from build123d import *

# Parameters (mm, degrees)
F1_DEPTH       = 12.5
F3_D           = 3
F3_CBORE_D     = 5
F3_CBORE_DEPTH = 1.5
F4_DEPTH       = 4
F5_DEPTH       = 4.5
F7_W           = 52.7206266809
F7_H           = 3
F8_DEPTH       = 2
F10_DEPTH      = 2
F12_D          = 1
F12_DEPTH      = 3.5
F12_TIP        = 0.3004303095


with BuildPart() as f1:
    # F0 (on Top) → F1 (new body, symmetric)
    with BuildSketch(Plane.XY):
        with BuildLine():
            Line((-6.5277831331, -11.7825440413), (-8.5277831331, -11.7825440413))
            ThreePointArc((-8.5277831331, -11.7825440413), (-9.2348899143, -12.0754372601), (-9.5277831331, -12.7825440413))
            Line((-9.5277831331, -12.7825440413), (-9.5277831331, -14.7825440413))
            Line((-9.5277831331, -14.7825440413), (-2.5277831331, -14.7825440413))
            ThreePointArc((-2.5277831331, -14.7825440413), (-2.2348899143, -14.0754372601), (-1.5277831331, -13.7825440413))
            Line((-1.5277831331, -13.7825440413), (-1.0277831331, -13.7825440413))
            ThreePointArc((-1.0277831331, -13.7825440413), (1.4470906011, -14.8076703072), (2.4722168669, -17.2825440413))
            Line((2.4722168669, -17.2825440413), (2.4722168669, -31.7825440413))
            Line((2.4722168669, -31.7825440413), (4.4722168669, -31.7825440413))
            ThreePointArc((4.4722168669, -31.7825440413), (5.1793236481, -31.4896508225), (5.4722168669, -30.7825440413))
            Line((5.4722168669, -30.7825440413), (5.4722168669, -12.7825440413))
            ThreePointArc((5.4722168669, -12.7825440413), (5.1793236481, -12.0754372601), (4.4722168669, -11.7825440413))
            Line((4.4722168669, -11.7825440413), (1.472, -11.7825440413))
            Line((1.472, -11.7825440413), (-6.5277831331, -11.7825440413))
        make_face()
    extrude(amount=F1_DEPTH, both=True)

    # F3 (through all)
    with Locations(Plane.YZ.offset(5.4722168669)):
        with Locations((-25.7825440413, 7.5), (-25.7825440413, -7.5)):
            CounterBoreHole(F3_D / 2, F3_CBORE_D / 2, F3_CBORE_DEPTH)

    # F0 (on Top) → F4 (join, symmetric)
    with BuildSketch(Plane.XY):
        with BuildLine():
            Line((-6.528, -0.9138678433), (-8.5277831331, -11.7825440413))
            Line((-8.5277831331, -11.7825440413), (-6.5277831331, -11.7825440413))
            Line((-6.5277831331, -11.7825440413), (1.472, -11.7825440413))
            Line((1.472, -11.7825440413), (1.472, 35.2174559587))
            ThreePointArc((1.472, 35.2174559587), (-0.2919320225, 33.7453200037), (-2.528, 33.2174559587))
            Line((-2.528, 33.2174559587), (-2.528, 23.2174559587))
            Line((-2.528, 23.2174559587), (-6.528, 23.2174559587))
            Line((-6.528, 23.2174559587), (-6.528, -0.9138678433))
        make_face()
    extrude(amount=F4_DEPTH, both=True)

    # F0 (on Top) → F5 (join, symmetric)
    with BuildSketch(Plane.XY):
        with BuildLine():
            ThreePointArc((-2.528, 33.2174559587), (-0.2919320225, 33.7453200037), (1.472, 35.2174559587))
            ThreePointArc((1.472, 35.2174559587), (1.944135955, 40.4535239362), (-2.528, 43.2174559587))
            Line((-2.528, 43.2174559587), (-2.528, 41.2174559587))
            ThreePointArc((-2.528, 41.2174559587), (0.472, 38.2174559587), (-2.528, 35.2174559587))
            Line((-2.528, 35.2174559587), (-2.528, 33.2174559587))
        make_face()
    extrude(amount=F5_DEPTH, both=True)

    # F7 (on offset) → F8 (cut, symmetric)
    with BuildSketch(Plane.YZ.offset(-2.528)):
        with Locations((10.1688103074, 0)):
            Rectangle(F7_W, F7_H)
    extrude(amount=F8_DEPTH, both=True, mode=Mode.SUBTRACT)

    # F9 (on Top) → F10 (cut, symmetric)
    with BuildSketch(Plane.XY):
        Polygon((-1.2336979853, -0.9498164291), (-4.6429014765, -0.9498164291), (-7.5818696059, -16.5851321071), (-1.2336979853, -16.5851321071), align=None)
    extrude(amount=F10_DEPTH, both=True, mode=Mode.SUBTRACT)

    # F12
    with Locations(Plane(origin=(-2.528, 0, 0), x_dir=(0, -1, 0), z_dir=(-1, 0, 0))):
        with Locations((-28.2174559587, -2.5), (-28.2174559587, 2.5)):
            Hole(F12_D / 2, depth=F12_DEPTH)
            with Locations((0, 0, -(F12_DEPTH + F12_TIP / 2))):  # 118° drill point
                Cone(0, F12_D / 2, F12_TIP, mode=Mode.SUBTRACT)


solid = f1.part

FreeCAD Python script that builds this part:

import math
import FreeCAD as App
import Part
import Sketcher


def add_polygon(sketch, points):
    """Adds a closed chain of lines whose ends are joined by coincident constraints."""
    first, n = sketch.GeometryCount, len(points)
    for a, b in zip(points, points[1:] + points[:1]):
        sketch.addGeometry(Part.LineSegment(App.Vector(*a, 0), App.Vector(*b, 0)), False)
    for i in range(n):
        sketch.addConstraint(Sketcher.Constraint("Coincident", first + i, 2, first + (i + 1) % n, 1))

doc = App.newDocument("Part")
body = doc.addObject("PartDesign::Body", "Body")

sketch1 = body.newObject("Sketcher::SketchObject", "Sketch")
sketch1.AttachmentSupport = (doc.getObject("XY_Plane"), [""])
sketch1.MapMode = "FlatFace"
sketch1.addGeometry(Part.ArcOfCircle(Part.Circle(App.Vector(-8.5, -12.8, 0), App.Vector(0, 0, 1), 1), math.radians(90), math.radians(180)), False)
sketch1.addGeometry(Part.LineSegment(App.Vector(-9.5, -12.8, 0), App.Vector(-9.5, -14.8, 0)), False)
sketch1.addGeometry(Part.LineSegment(App.Vector(-9.5, -14.8, 0), App.Vector(-2.5, -14.8, 0)), False)
sketch1.addGeometry(Part.ArcOfCircle(Part.Circle(App.Vector(-1.5, -14.8, 0), App.Vector(0, 0, 1), 1), math.radians(90), math.radians(180)), False)
sketch1.addGeometry(Part.LineSegment(App.Vector(-1.5, -13.8, 0), App.Vector(-1, -13.8, 0)), False)
sketch1.addGeometry(Part.ArcOfCircle(Part.Circle(App.Vector(-1, -17.3, 0), App.Vector(0, 0, 1), 3.5), math.radians(0), math.radians(90)), False)
sketch1.addGeometry(Part.LineSegment(App.Vector(2.5, -17.3, 0), App.Vector(2.5, -31.8, 0)), False)
sketch1.addGeometry(Part.LineSegment(App.Vector(2.5, -31.8, 0), App.Vector(4.5, -31.8, 0)), False)
sketch1.addGeometry(Part.ArcOfCircle(Part.Circle(App.Vector(4.5, -30.8, 0), App.Vector(0, 0, 1), 1), math.radians(-90), math.radians(0)), False)
sketch1.addGeometry(Part.LineSegment(App.Vector(5.5, -30.8, 0), App.Vector(5.5, -12.8, 0)), False)
sketch1.addGeometry(Part.ArcOfCircle(Part.Circle(App.Vector(4.5, -12.8, 0), App.Vector(0, 0, 1), 1), math.radians(0), math.radians(90)), False)
sketch1.addGeometry(Part.LineSegment(App.Vector(4.5, -11.8, 0), App.Vector(-8.5, -11.8, 0)), False)
sketch1.addConstraint(Sketcher.Constraint("Tangent", 0, 2, 1, 1))
sketch1.addConstraint(Sketcher.Constraint("Coincident", 1, 2, 2, 1))
sketch1.addConstraint(Sketcher.Constraint("Coincident", 2, 2, 3, 2))
sketch1.addConstraint(Sketcher.Constraint("Tangent", 3, 1, 4, 1))
sketch1.addConstraint(Sketcher.Constraint("Tangent", 4, 2, 5, 2))
sketch1.addConstraint(Sketcher.Constraint("Tangent", 5, 1, 6, 1))
sketch1.addConstraint(Sketcher.Constraint("Coincident", 6, 2, 7, 1))
sketch1.addConstraint(Sketcher.Constraint("Tangent", 7, 2, 8, 1))
sketch1.addConstraint(Sketcher.Constraint("Tangent", 8, 2, 9, 1))
sketch1.addConstraint(Sketcher.Constraint("Tangent", 9, 2, 10, 1))
sketch1.addConstraint(Sketcher.Constraint("Tangent", 10, 2, 11, 1))
sketch1.addConstraint(Sketcher.Constraint("Tangent", 11, 2, 0, 1))
sketch1.addConstraint(Sketcher.Constraint("Vertical", 1))
sketch1.addConstraint(Sketcher.Constraint("Horizontal", 2))
sketch1.addConstraint(Sketcher.Constraint("Horizontal", 4))
sketch1.addConstraint(Sketcher.Constraint("Vertical", 6))
sketch1.addConstraint(Sketcher.Constraint("Horizontal", 7))
sketch1.addConstraint(Sketcher.Constraint("Vertical", 9))
sketch1.addConstraint(Sketcher.Constraint("Horizontal", 11))
sketch1.addConstraint(Sketcher.Constraint("Equal", 0, 3))
sketch1.addConstraint(Sketcher.Constraint("Equal", 3, 8))
sketch1.addConstraint(Sketcher.Constraint("Equal", 8, 10))
sketch1.addConstraint(Sketcher.Constraint("Horizontal", 3, 3, 1, 2))
sketch1.addConstraint(Sketcher.Constraint("Equal", 7, 1))
sketch1.addConstraint(Sketcher.Constraint("Radius", 0, 1.0))
sketch1.addConstraint(Sketcher.Constraint("Radius", 5, 3.5))
sketch1.addConstraint(Sketcher.Constraint("DistanceX", 2, 1, 2, 2, 7.0))
sketch1.addConstraint(Sketcher.Constraint("DistanceX", 7, 1, 7, 2, 2.0))
sketch1.addConstraint(Sketcher.Constraint("DistanceX", 11, 2, 11, 1, 13.0))
sketch1.addConstraint(Sketcher.Constraint("DistanceY", 9, 1, 9, 2, 18.0))
sketch1.addConstraint(Sketcher.Constraint("DistanceX", 0, 3, -1, 1, 8.527783))
sketch1.addConstraint(Sketcher.Constraint("DistanceY", 0, 3, -1, 1, 12.782544))
pad1 = body.newObject("PartDesign::Pad", "Pad")
pad1.Profile = sketch1
pad1.Length = 25
pad1.Midplane = True

sketch2 = body.newObject("Sketcher::SketchObject", "Sketch001")
sketch2.AttachmentSupport = (doc.getObject("YZ_Plane"), [""])
sketch2.MapMode = "FlatFace"
sketch2.AttachmentOffset = App.Placement(App.Vector(0, 0, 5.472217), App.Rotation())
sketch2.addGeometry(Part.Circle(App.Vector(-25.8, 7.5, 0), App.Vector(0, 0, 1), 1.5), False)
sketch2.addGeometry(Part.Circle(App.Vector(-25.8, -7.5, 0), App.Vector(0, 0, 1), 1.5), False)
sketch2.addConstraint(Sketcher.Constraint("Equal", 0, 1))
sketch2.addConstraint(Sketcher.Constraint("Symmetric", 0, 3, 1, 3, -1))
sketch2.addConstraint(Sketcher.Constraint("Diameter", 0, 3.0))
sketch2.addConstraint(Sketcher.Constraint("DistanceY", 1, 3, 0, 3, 15.0))
sketch2.addConstraint(Sketcher.Constraint("DistanceX", 0, 3, -1, 1, 25.782544))
doc.recompute()
hole = body.newObject("PartDesign::Hole", "Hole")
hole.Profile = sketch2
hole.ThreadType = "None"
hole.Diameter = 3
hole.DepthType = "ThroughAll"
hole.HoleCutType = "Counterbore"
hole.HoleCutDiameter = 5
hole.HoleCutDepth = 1.5

sketch3 = body.newObject("Sketcher::SketchObject", "Sketch002")
sketch3.AttachmentSupport = (doc.getObject("XY_Plane"), [""])
sketch3.MapMode = "FlatFace"
sketch3.addGeometry(Part.LineSegment(App.Vector(-6.5, -0.9, 0), App.Vector(-8.5, -11.8, 0)), False)
sketch3.addGeometry(Part.LineSegment(App.Vector(-8.5, -11.8, 0), App.Vector(1.5, -11.8, 0)), False)
sketch3.addGeometry(Part.LineSegment(App.Vector(1.5, -11.8, 0), App.Vector(1.5, 35.2, 0)), False)
sketch3.addGeometry(Part.ArcOfCircle(Part.Circle(App.Vector(-2.5, 38.2, 0), App.Vector(0, 0, 1), 5), math.radians(-90), math.radians(-37)), False)
sketch3.addGeometry(Part.LineSegment(App.Vector(-2.5, 33.2, 0), App.Vector(-2.5, 23.2, 0)), False)
sketch3.addGeometry(Part.LineSegment(App.Vector(-2.5, 23.2, 0), App.Vector(-6.5, 23.2, 0)), False)
sketch3.addGeometry(Part.LineSegment(App.Vector(-6.5, 23.2, 0), App.Vector(-6.5, -0.9, 0)), False)
sketch3.addConstraint(Sketcher.Constraint("Coincident", 0, 2, 1, 1))
sketch3.addConstraint(Sketcher.Constraint("Coincident", 1, 2, 2, 1))
sketch3.addConstraint(Sketcher.Constraint("Coincident", 2, 2, 3, 2))
sketch3.addConstraint(Sketcher.Constraint("Coincident", 3, 1, 4, 1))
sketch3.addConstraint(Sketcher.Constraint("Coincident", 4, 2, 5, 1))
sketch3.addConstraint(Sketcher.Constraint("Coincident", 5, 2, 6, 1))
sketch3.addConstraint(Sketcher.Constraint("Coincident", 6, 2, 0, 1))
sketch3.addConstraint(Sketcher.Constraint("Horizontal", 1))
sketch3.addConstraint(Sketcher.Constraint("Vertical", 2))
sketch3.addConstraint(Sketcher.Constraint("Vertical", 4))
sketch3.addConstraint(Sketcher.Constraint("Horizontal", 5))
sketch3.addConstraint(Sketcher.Constraint("Vertical", 6))
sketch3.addConstraint(Sketcher.Constraint("Radius", 3, 5.0))
sketch3.addConstraint(Sketcher.Constraint("DistanceX", 5, 2, 5, 1, 4.0))
sketch3.addConstraint(Sketcher.Constraint("DistanceY", 2, 1, 2, 2, 47.0))
sketch3.addConstraint(Sketcher.Constraint("DistanceY", 4, 2, 4, 1, 10.0))
sketch3.addConstraint(Sketcher.Constraint("DistanceY", 0, 2, 3, 3, 50.0))
sketch3.addConstraint(Sketcher.Constraint("DistanceX", 3, 1, 2, 2, 4.0))
sketch3.addConstraint(Sketcher.Constraint("DistanceX", 3, 3, -1, 1, 2.528))
sketch3.addConstraint(Sketcher.Constraint("Distance", 0, 11.05112))
sketch3.addConstraint(Sketcher.Constraint("DistanceX", 1, 1, 1, 2, 9.999783))
sketch3.addConstraint(Sketcher.Constraint("DistanceY", -1, 1, 3, 3, 38.217456))
pad2 = body.newObject("PartDesign::Pad", "Pad001")
pad2.Profile = sketch3
pad2.Length = 8
pad2.Midplane = True

sketch4 = body.newObject("Sketcher::SketchObject", "Sketch003")
sketch4.AttachmentSupport = (doc.getObject("XY_Plane"), [""])
sketch4.MapMode = "FlatFace"
sketch4.addGeometry(Part.ArcOfCircle(Part.Circle(App.Vector(-2.5, 38.2, 0), App.Vector(0, 0, 1), 5), math.radians(-90), math.radians(90)), False)
sketch4.addGeometry(Part.LineSegment(App.Vector(-2.5, 43.2, 0), App.Vector(-2.5, 41.2, 0)), False)
sketch4.addGeometry(Part.ArcOfCircle(Part.Circle(App.Vector(-2.5, 38.2, 0), App.Vector(0, 0, 1), 3), math.radians(-90), math.radians(90)), False)
sketch4.addGeometry(Part.LineSegment(App.Vector(-2.5, 35.2, 0), App.Vector(-2.5, 33.2, 0)), False)
sketch4.addConstraint(Sketcher.Constraint("Coincident", 0, 2, 1, 1))
sketch4.addConstraint(Sketcher.Constraint("Coincident", 1, 2, 2, 2))
sketch4.addConstraint(Sketcher.Constraint("Coincident", 2, 1, 3, 1))
sketch4.addConstraint(Sketcher.Constraint("Coincident", 3, 2, 0, 1))
sketch4.addConstraint(Sketcher.Constraint("Vertical", 1))
sketch4.addConstraint(Sketcher.Constraint("Vertical", 3))
sketch4.addConstraint(Sketcher.Constraint("Coincident", 2, 3, 0, 3))
sketch4.addConstraint(Sketcher.Constraint("Vertical", 2, 3, 0, 2))
sketch4.addConstraint(Sketcher.Constraint("Vertical", 1, 2, 2, 1))
sketch4.addConstraint(Sketcher.Constraint("Radius", 0, 5.0))
sketch4.addConstraint(Sketcher.Constraint("Radius", 2, 3.0))
sketch4.addConstraint(Sketcher.Constraint("DistanceX", 0, 3, -1, 1, 2.528))
sketch4.addConstraint(Sketcher.Constraint("DistanceY", -1, 1, 0, 3, 38.217456))
pad3 = body.newObject("PartDesign::Pad", "Pad002")
pad3.Profile = sketch4
pad3.Length = 9
pad3.Midplane = True

sketch5 = body.newObject("Sketcher::SketchObject", "Sketch004")
sketch5.AttachmentSupport = (doc.getObject("YZ_Plane"), [""])
sketch5.MapMode = "FlatFace"
sketch5.AttachmentOffset = App.Placement(App.Vector(0, 0, -2.528), App.Rotation())
add_polygon(sketch5, [(-16.2, 1.5), (-16.2, -1.5), (36.5, -1.5), (36.5, 1.5)])
sketch5.addConstraint(Sketcher.Constraint("Vertical", 0))
sketch5.addConstraint(Sketcher.Constraint("Horizontal", 1))
sketch5.addConstraint(Sketcher.Constraint("Vertical", 2))
sketch5.addConstraint(Sketcher.Constraint("Horizontal", 3))
sketch5.addConstraint(Sketcher.Constraint("DistanceY", 0, 2, 0, 1, 3.0))
sketch5.addConstraint(Sketcher.Constraint("DistanceY", 0, 2, -1, 1, 1.5))
sketch5.addConstraint(Sketcher.Constraint("DistanceX", 1, 1, 1, 2, 52.720627))
sketch5.addConstraint(Sketcher.Constraint("DistanceX", 0, 2, -1, 1, 16.191503))
pocket1 = body.newObject("PartDesign::Pocket", "Pocket")
pocket1.Profile = sketch5
pocket1.Length = 4
pocket1.Midplane = True

sketch6 = body.newObject("Sketcher::SketchObject", "Sketch005")
sketch6.AttachmentSupport = (doc.getObject("XY_Plane"), [""])
sketch6.MapMode = "FlatFace"
add_polygon(sketch6, [(-1.2, -0.9), (-4.6, -0.9), (-7.6, -16.6), (-1.2, -16.6)])
sketch6.addConstraint(Sketcher.Constraint("Horizontal", 0))
sketch6.addConstraint(Sketcher.Constraint("Horizontal", 2))
sketch6.addConstraint(Sketcher.Constraint("Vertical", 3))
sketch6.addConstraint(Sketcher.Constraint("DistanceX", 2, 1, 2, 2, 6.348172))
sketch6.addConstraint(Sketcher.Constraint("DistanceX", 0, 2, -1, 1, 4.642901))
sketch6.addConstraint(Sketcher.Constraint("DistanceX", 0, 2, 0, 1, 3.409203))
sketch6.addConstraint(Sketcher.Constraint("DistanceY", 3, 1, 3, 2, 15.635316))
sketch6.addConstraint(Sketcher.Constraint("DistanceY", 0, 2, -1, 1, 0.949816))
pocket2 = body.newObject("PartDesign::Pocket", "Pocket001")
pocket2.Profile = sketch6
pocket2.Length = 4
pocket2.Midplane = True

sketch7 = body.newObject("Sketcher::SketchObject", "Sketch006")
sketch7.AttachmentSupport = (doc.getObject("YZ_Plane"), [""])
sketch7.MapMode = "FlatFace"
sketch7.AttachmentOffset = App.Placement(App.Vector(0, 0, -2.528), App.Rotation())
sketch7.addGeometry(Part.Circle(App.Vector(28.2, -2.5, 0), App.Vector(0, 0, 1), 0.5), False)
sketch7.addGeometry(Part.Circle(App.Vector(28.2, 2.5, 0), App.Vector(0, 0, 1), 0.5), False)
sketch7.addConstraint(Sketcher.Constraint("Equal", 0, 1))
sketch7.addConstraint(Sketcher.Constraint("Symmetric", 0, 3, 1, 3, -1))
sketch7.addConstraint(Sketcher.Constraint("Diameter", 0, 1.0))
sketch7.addConstraint(Sketcher.Constraint("DistanceY", 0, 3, 1, 3, 5.0))
sketch7.addConstraint(Sketcher.Constraint("DistanceX", -1, 1, 0, 3, 28.217456))
doc.recompute()
hole2 = body.newObject("PartDesign::Hole", "Hole001")
hole2.Profile = sketch7
hole2.ThreadType = "None"
hole2.Diameter = 1
hole2.DepthType = "Dimension"
hole2.Depth = 3.5
hole2.DrillPoint = "Angled"
hole2.DrillPointAngle = 118
hole2.Reversed = True

doc.recompute()
